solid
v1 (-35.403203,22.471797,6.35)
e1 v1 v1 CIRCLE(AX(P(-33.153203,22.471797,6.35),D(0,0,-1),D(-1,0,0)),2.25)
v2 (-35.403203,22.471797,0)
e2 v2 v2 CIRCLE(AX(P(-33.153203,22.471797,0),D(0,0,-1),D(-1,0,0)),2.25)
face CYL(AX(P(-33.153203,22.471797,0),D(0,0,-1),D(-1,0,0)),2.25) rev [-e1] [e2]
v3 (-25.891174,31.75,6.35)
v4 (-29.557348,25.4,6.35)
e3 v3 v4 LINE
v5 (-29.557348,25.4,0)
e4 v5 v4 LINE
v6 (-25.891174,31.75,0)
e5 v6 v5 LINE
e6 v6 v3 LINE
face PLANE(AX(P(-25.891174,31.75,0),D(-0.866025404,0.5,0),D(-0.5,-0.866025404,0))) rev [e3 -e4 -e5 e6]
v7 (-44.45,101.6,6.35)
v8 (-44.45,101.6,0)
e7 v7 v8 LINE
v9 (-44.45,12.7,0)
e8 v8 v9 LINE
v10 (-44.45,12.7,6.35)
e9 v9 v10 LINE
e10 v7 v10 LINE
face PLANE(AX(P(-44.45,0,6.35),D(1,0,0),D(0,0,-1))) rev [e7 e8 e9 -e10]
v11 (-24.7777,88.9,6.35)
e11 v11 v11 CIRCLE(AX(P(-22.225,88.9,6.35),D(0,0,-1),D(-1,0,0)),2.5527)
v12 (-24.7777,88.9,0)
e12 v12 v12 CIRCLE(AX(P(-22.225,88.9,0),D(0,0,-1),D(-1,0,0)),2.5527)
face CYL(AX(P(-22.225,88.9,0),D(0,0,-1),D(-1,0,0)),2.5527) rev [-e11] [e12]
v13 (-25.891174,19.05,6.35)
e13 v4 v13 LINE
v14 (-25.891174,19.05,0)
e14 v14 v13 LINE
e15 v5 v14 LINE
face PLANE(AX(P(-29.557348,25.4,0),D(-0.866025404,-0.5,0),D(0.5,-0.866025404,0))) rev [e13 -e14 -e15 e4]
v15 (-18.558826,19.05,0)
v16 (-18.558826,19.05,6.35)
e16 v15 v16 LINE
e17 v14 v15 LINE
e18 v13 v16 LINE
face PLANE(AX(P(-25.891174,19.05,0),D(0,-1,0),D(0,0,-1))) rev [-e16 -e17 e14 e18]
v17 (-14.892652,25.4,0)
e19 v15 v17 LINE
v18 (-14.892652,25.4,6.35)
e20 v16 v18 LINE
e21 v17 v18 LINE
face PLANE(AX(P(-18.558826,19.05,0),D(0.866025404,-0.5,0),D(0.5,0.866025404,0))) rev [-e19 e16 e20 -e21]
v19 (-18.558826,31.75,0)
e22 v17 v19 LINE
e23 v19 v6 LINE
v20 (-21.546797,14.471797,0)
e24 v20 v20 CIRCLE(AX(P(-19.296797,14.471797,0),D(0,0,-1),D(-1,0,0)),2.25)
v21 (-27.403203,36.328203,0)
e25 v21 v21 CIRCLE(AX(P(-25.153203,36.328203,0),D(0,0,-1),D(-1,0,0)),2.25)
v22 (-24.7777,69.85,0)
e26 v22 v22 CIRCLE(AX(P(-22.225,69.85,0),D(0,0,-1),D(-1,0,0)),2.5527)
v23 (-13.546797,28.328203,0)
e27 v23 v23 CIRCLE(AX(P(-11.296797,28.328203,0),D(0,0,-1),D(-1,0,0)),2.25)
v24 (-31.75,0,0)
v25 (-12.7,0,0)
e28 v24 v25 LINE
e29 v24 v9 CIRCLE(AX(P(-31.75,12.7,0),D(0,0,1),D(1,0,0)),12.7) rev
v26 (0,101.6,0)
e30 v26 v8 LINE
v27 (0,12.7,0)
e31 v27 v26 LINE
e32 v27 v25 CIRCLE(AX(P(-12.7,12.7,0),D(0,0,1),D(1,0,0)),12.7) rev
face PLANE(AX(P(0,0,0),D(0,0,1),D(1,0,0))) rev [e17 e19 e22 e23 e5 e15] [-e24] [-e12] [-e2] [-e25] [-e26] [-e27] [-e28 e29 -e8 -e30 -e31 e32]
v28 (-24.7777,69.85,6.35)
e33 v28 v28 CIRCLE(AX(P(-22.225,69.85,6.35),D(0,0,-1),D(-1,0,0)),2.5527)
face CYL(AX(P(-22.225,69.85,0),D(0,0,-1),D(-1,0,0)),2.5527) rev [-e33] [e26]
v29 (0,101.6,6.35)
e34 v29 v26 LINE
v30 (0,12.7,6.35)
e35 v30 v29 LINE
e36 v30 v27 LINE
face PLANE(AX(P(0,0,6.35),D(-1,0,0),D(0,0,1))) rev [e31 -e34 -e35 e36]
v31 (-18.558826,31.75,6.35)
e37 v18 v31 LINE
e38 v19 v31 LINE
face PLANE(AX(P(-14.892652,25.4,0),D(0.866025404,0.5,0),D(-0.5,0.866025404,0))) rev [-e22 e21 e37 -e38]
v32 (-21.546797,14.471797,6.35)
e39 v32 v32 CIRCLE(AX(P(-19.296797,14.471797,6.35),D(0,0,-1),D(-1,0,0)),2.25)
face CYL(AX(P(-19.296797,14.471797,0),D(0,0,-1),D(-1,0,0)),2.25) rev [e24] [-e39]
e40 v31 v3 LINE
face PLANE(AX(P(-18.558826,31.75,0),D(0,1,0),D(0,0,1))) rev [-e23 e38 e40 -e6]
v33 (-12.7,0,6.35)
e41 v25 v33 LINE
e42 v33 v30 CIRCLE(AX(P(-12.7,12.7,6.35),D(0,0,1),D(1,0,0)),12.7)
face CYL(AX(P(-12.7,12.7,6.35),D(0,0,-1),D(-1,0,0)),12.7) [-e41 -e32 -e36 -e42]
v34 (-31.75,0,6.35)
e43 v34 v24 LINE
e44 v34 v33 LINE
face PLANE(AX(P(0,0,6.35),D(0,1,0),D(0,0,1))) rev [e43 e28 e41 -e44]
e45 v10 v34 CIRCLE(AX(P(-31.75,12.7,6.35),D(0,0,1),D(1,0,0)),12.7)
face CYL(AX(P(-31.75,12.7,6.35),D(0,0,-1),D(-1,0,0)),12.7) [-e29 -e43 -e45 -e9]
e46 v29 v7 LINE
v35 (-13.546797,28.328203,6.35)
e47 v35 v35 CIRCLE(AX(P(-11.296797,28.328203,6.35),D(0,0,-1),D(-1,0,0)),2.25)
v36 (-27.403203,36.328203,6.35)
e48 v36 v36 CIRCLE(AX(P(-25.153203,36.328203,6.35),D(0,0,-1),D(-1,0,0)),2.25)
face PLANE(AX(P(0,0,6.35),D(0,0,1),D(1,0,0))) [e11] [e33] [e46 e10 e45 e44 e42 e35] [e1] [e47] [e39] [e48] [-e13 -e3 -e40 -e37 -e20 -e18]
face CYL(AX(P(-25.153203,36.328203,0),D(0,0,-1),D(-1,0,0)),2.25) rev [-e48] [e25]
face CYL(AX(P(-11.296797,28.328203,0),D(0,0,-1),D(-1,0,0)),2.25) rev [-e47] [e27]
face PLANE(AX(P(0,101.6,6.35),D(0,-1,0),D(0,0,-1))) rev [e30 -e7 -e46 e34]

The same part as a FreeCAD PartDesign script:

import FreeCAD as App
import Part
import Sketcher
from FreeCAD import Vector
Q = App.Units.Quantity


def edges_at(feature, points):
    """Names of the edges that pass closest to the given points."""
    edges = feature.Shape.Edges
    near = lambda p: min(range(len(edges)), key=lambda i: edges[i].distToShape(Part.Vertex(*p))[0])
    return sorted({f"Edge{near(p) + 1}" for p in points})


def add_polygon(sketch, points):
    """Adds a closed chain of lines whose ends are joined by coincident constraints."""
    first, n = sketch.GeometryCount, len(points)
    for a, b in zip(points, points[1:] + points[:1]):
        sketch.addGeometry(Part.LineSegment(App.Vector(*a, 0), App.Vector(*b, 0)), False)
    for i in range(n):
        sketch.addConstraint(Sketcher.Constraint("Coincident", first + i, 2, first + (i + 1) % n, 1))

doc = App.newDocument("Part")
body = doc.addObject("PartDesign::Body", "Body")

sketch1 = body.newObject("Sketcher::SketchObject", "Sketch")
sketch1.AttachmentSupport = (doc.getObject("XY_Plane"), [""])
sketch1.MapMode = "FlatFace"
add_polygon(sketch1, [(-44, 102), (-44, 0), (0, 0), (0, 102)])
sketch1.addConstraint([
    Sketcher.Constraint("Vertical", 0),
    Sketcher.Constraint("Horizontal", 1),
    Sketcher.Constraint("Vertical", 2),
    Sketcher.Constraint("Horizontal", 3),
    Sketcher.Constraint("Coincident", 1, 2, -1, 1),
    Sketcher.Constraint("DistanceY", 0, 2, 0, 1, Q("4 in")),
    Sketcher.Constraint("DistanceX", 1, 1, 1, 2, Q("1.75 in")),
])
pad1 = body.newObject("PartDesign::Pad", "Pad")
pad1.Profile = sketch1
pad1.Length = Q("0.25 in")
doc.recompute()

fillet = body.newObject("PartDesign::Fillet", "Fillet")
fillet.Base = (pad1, edges_at(pad1, [(0, 0, 3.175), (-44.45, 0, 3.175)]))
fillet.Radius = Q("0.5 in")

sketch2 = body.newObject("Sketcher::SketchObject", "Sketch001")
sketch2.AttachmentSupport = (doc.getObject("XY_Plane"), [""])
sketch2.MapMode = "FlatFace"
sketch2.addGeometry([
    Part.Circle(Vector(-22.2, 88.9, 0), Vector(0, 0, 1), 2.6),
    Part.Circle(Vector(-22.2, 69.8, 0), Vector(0, 0, 1), 2.6),
], False)
sketch2.addConstraint([
    Sketcher.Constraint("Equal", 0, 1),
    Sketcher.Constraint("Vertical", 0, 3, 1, 3),
    Sketcher.Constraint("Diameter", 0, Q("0.201 in")),
    Sketcher.Constraint("DistanceY", -1, 1, 0, 3, Q("3.5 in")),
    Sketcher.Constraint("DistanceY", -1, 1, 1, 3, Q("2.75 in")),
    Sketcher.Constraint("DistanceX", 0, 3, -1, 1, Q("0.875 in")),
])
doc.recompute()
hole = body.newObject("PartDesign::Hole", "Hole")
hole.Profile = sketch2
hole.ThreadType = "None"
hole.Diameter = Q("0.201 in")
hole.DepthType = "ThroughAll"
hole.Reversed = True

sketch3 = body.newObject("Sketcher::SketchObject", "Sketch002")
sketch3.AttachmentSupport = (doc.getObject("XY_Plane"), [""])
sketch3.MapMode = "FlatFace"
sketch3.AttachmentOffset = App.Placement(Vector(0, 0, 0.25 * 25.4), App.Rotation())
add_polygon(sketch3, [(-15, 25), (-19, 32), (-26, 32), (-30, 25), (-26, 19), (-19, 19)])
sketch3.addConstraint([
    Sketcher.Constraint("Horizontal", 1),
    Sketcher.Constraint("Horizontal", 4),
    Sketcher.Constraint("Parallel", 0, 3),
    Sketcher.Constraint("Parallel", 2, 5),
    Sketcher.Constraint("Horizontal", 2, 2, 5, 2),
    Sketcher.Constraint("Vertical", 1, 2, 3, 2),
    Sketcher.Constraint("Vertical", 0, 2, 4, 2),
    Sketcher.Constraint("DistanceY", -1, 1, 2, 2, Q("1 in")),
    Sketcher.Constraint("Angle", 0, Q("120 deg")),
    Sketcher.Constraint("DistanceY", 3, 2, 1, 2, Q("0.5 in")),
    Sketcher.Constraint("DistanceX", 1, 2, 1, 1, Q("7.332348 mm")),
    Sketcher.Constraint("DistanceX", 2, 2, -1, 1, Q("29.557348 mm")),
])
pocket1 = body.newObject("PartDesign::Pocket", "Pocket")
pocket1.Profile = sketch3
pocket1.Type = "ThroughAll"

sketch4 = body.newObject("Sketcher::SketchObject", "Sketch003")
sketch4.AttachmentSupport = (doc.getObject("XY_Plane"), [""])
sketch4.MapMode = "FlatFace"
sketch4.addGeometry([
    Part.Circle(Vector(-11.3, 28.3, 0), Vector(0, 0, 1), 2.2),
    Part.Circle(Vector(-25.2, 36.3, 0), Vector(0, 0, 1), 2.2),
    Part.Circle(Vector(-33.2, 22.5, 0), Vector(0, 0, 1), 2.2),
    Part.Circle(Vector(-19.3, 14.5, 0), Vector(0, 0, 1), 2.2),
], False)
sketch4.addConstraint([
    Sketcher.Constraint("Equal", 0, 1),
    Sketcher.Constraint("Equal", 1, 2),
    Sketcher.Constraint("Equal", 2, 3),
    Sketcher.Constraint("Diameter", 0, Q("4.5 mm")),
    Sketcher.Constraint("DistanceY", 0, 3, 1, 3, Q("8 mm")),
    Sketcher.Constraint("DistanceX", 2, 3, 1, 3, Q("8 mm")),
    Sketcher.Constraint("DistanceX", 3, 3, 0, 3, Q("8 mm")),
    Sketcher.Constraint("DistanceY", 3, 3, 2, 3, Q("8 mm")),
    Sketcher.Constraint("DistanceX", 0, 3, -1, 1, Q("11.296797 mm")),
    Sketcher.Constraint("DistanceY", -1, 1, 0, 3, Q("28.328203 mm")),
    Sketcher.Constraint("DistanceX", 1, 3, -1, 1, Q("25.153203 mm")),
    Sketcher.Constraint("DistanceY", -1, 1, 2, 3, Q("22.471797 mm")),
])
doc.recompute()
hole2 = body.newObject("PartDesign::Hole", "Hole001")
hole2.Profile = sketch4
hole2.ThreadType = "None"
hole2.Diameter = 4.5
hole2.DepthType = "ThroughAll"
hole2.Reversed = True

doc.recompute()
